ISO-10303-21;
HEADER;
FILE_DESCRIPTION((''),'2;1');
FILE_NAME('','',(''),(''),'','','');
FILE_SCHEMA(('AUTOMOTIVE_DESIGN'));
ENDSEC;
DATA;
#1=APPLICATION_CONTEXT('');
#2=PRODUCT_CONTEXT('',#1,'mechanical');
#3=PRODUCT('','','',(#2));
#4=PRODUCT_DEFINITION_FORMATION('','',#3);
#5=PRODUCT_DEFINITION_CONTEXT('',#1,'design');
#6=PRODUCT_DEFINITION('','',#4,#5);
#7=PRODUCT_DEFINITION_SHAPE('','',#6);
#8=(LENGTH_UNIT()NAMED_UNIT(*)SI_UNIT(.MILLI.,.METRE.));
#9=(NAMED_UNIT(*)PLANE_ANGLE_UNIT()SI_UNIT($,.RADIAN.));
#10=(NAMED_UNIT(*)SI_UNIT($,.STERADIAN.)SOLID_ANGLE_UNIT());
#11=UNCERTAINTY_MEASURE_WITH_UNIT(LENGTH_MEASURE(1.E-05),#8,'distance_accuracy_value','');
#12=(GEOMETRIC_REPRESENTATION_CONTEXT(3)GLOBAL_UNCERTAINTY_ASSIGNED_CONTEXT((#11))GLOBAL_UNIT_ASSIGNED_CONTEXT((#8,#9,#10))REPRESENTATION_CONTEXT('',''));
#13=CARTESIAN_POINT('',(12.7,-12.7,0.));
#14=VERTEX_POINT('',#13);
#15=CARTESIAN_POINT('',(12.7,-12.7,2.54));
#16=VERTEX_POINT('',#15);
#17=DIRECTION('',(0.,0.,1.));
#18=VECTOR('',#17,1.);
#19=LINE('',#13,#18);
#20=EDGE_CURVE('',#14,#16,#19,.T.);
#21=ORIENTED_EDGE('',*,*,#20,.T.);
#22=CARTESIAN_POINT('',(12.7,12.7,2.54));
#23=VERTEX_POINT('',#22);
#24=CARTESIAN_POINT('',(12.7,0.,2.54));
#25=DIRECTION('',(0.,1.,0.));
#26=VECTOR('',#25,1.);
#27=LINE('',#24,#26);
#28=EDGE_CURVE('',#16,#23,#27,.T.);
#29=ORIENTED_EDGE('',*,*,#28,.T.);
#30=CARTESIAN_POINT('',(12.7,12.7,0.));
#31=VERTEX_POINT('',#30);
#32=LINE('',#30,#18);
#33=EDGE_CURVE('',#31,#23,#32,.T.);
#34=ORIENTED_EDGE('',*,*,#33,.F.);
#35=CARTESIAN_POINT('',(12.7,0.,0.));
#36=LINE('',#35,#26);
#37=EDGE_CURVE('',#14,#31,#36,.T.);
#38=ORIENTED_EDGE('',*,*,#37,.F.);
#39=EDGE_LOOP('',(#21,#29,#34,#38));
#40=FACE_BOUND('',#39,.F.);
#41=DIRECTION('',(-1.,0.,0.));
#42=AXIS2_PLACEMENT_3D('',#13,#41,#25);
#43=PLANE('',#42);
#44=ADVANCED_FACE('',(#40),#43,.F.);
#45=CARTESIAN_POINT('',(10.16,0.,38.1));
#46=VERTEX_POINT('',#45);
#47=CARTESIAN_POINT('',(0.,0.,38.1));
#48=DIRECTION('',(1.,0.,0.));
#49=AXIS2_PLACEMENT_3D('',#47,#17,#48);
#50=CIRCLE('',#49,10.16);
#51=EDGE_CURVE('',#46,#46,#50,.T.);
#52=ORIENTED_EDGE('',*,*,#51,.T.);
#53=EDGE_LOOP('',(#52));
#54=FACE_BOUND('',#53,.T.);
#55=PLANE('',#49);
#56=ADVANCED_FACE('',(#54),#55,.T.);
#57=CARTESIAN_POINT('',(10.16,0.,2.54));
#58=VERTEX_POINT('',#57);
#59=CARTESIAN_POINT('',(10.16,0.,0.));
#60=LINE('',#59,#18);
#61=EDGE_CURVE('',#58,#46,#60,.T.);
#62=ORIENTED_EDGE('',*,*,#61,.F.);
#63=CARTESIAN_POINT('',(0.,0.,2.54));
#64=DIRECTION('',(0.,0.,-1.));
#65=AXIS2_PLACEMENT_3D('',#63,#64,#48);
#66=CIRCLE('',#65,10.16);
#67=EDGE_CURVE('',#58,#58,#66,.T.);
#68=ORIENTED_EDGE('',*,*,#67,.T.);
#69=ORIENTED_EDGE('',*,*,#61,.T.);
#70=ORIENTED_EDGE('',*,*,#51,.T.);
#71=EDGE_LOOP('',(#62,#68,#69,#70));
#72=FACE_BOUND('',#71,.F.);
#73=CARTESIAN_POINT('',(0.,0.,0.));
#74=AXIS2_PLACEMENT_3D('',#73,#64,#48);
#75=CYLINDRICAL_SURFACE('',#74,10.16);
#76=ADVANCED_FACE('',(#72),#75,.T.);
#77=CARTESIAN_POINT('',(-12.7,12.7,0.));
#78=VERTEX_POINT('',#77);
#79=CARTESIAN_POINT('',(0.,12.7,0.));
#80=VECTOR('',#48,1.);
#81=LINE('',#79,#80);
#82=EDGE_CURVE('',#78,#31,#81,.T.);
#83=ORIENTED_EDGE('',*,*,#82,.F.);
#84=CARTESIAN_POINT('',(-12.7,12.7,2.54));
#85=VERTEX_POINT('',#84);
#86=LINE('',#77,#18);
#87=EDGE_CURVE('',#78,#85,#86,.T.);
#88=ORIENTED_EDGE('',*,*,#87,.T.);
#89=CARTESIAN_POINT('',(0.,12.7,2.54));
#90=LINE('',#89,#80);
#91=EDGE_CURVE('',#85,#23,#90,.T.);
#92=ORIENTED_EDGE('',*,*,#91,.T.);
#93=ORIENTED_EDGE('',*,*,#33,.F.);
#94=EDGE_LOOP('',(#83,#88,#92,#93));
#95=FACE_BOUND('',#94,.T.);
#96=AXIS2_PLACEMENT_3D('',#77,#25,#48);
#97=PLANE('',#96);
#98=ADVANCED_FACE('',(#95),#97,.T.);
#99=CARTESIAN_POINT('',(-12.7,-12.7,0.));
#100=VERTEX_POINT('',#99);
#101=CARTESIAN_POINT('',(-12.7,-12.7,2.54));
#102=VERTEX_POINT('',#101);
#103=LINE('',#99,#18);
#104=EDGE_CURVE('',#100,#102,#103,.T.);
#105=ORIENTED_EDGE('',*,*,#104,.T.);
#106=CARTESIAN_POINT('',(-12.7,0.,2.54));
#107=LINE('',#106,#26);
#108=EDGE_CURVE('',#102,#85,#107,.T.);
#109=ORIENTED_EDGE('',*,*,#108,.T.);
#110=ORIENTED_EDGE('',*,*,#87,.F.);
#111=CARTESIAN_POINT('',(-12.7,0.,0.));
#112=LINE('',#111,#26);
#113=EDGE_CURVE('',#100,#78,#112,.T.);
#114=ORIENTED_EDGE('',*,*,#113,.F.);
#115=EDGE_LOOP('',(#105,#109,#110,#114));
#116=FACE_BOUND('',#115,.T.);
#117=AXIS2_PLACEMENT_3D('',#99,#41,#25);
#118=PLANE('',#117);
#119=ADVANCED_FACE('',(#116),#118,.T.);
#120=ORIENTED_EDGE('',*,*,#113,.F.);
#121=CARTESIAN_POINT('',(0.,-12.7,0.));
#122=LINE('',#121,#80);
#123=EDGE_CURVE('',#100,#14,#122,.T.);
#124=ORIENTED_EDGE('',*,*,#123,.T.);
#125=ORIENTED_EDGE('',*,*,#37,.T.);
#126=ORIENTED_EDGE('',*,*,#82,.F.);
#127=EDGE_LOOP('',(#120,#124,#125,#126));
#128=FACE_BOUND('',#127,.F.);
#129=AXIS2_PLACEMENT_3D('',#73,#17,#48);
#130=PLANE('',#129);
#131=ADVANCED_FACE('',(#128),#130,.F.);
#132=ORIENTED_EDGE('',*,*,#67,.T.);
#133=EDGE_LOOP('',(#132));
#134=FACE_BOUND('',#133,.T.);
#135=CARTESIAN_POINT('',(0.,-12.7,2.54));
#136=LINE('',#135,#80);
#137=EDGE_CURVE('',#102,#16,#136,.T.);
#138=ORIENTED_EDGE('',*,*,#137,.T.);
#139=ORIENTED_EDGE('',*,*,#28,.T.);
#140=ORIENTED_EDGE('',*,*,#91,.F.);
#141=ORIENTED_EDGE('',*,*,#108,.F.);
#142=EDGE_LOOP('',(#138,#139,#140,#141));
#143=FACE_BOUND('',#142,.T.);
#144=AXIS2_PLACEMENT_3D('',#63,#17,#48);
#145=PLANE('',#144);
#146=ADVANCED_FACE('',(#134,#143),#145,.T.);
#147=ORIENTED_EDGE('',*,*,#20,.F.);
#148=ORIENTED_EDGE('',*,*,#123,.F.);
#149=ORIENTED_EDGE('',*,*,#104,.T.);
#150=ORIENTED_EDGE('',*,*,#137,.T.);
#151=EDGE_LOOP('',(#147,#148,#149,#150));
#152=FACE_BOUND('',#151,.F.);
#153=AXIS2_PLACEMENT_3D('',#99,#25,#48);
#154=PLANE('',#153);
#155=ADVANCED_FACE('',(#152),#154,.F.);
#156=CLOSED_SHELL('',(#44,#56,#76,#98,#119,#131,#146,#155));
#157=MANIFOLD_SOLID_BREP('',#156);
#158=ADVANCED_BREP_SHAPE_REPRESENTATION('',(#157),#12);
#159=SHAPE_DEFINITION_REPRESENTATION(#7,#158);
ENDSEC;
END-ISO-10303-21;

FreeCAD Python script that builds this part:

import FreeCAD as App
import Part
import Sketcher
from FreeCAD import Vector
Q = App.Units.Quantity

doc = App.newDocument("Part")
body = doc.addObject("PartDesign::Body", "Body")

sketch1 = body.newObject("Sketcher::SketchObject", "Sketch")
sketch1.AttachmentSupport = (doc.getObject("XY_Plane"), [""])
sketch1.MapMode = "FlatFace"
sketch1.addGeometry(Part.Circle(Vector(0, 0, 0), Vector(0, 0, 1), 10.16), False)
sketch1.addConstraint([
    Sketcher.Constraint("Coincident", 0, 3, -1, 1),
    Sketcher.Constraint("Diameter", 0, Q("0.8 in")),
])
pad1 = body.newObject("PartDesign::Pad", "Pad")
pad1.Profile = sketch1
pad1.Length = Q("1.5 in")

sketch2 = body.newObject("Sketcher::SketchObject", "Sketch001")
sketch2.AttachmentSupport = (doc.getObject("XY_Plane"), [""])
sketch2.MapMode = "FlatFace"
sketch2.addGeometry([
    Part.LineSegment(Vector(-12.7, 12.7, 0), Vector(-12.7, -12.7, 0)),
    Part.LineSegment(Vector(-12.7, -12.7, 0), Vector(12.7, -12.7, 0)),
    Part.LineSegment(Vector(12.7, -12.7, 0), Vector(12.7, 12.7, 0)),
    Part.LineSegment(Vector(12.7, 12.7, 0), Vector(-12.7, 12.7, 0)),
], False)
sketch2.addConstraint([
    Sketcher.Constraint("Coincident", 0, 2, 1, 1),
    Sketcher.Constraint("Coincident", 1, 2, 2, 1),
    Sketcher.Constraint("Coincident", 2, 2, 3, 1),
    Sketcher.Constraint("Coincident", 3, 2, 0, 1),
    Sketcher.Constraint("Vertical", 0),
    Sketcher.Constraint("Horizontal", 1),
    Sketcher.Constraint("Vertical", 2),
    Sketcher.Constraint("Horizontal", 3),
    Sketcher.Constraint("Symmetric", 0, 2, 2, 2, -1, 1),
    Sketcher.Constraint("Equal", 3, 0),
    Sketcher.Constraint("DistanceX", 1, 1, 1, 2, Q("1 in")),
])
pad2 = body.newObject("PartDesign::Pad", "Pad001")
pad2.Profile = sketch2
pad2.Length = Q("0.1 in")

doc.recompute()
